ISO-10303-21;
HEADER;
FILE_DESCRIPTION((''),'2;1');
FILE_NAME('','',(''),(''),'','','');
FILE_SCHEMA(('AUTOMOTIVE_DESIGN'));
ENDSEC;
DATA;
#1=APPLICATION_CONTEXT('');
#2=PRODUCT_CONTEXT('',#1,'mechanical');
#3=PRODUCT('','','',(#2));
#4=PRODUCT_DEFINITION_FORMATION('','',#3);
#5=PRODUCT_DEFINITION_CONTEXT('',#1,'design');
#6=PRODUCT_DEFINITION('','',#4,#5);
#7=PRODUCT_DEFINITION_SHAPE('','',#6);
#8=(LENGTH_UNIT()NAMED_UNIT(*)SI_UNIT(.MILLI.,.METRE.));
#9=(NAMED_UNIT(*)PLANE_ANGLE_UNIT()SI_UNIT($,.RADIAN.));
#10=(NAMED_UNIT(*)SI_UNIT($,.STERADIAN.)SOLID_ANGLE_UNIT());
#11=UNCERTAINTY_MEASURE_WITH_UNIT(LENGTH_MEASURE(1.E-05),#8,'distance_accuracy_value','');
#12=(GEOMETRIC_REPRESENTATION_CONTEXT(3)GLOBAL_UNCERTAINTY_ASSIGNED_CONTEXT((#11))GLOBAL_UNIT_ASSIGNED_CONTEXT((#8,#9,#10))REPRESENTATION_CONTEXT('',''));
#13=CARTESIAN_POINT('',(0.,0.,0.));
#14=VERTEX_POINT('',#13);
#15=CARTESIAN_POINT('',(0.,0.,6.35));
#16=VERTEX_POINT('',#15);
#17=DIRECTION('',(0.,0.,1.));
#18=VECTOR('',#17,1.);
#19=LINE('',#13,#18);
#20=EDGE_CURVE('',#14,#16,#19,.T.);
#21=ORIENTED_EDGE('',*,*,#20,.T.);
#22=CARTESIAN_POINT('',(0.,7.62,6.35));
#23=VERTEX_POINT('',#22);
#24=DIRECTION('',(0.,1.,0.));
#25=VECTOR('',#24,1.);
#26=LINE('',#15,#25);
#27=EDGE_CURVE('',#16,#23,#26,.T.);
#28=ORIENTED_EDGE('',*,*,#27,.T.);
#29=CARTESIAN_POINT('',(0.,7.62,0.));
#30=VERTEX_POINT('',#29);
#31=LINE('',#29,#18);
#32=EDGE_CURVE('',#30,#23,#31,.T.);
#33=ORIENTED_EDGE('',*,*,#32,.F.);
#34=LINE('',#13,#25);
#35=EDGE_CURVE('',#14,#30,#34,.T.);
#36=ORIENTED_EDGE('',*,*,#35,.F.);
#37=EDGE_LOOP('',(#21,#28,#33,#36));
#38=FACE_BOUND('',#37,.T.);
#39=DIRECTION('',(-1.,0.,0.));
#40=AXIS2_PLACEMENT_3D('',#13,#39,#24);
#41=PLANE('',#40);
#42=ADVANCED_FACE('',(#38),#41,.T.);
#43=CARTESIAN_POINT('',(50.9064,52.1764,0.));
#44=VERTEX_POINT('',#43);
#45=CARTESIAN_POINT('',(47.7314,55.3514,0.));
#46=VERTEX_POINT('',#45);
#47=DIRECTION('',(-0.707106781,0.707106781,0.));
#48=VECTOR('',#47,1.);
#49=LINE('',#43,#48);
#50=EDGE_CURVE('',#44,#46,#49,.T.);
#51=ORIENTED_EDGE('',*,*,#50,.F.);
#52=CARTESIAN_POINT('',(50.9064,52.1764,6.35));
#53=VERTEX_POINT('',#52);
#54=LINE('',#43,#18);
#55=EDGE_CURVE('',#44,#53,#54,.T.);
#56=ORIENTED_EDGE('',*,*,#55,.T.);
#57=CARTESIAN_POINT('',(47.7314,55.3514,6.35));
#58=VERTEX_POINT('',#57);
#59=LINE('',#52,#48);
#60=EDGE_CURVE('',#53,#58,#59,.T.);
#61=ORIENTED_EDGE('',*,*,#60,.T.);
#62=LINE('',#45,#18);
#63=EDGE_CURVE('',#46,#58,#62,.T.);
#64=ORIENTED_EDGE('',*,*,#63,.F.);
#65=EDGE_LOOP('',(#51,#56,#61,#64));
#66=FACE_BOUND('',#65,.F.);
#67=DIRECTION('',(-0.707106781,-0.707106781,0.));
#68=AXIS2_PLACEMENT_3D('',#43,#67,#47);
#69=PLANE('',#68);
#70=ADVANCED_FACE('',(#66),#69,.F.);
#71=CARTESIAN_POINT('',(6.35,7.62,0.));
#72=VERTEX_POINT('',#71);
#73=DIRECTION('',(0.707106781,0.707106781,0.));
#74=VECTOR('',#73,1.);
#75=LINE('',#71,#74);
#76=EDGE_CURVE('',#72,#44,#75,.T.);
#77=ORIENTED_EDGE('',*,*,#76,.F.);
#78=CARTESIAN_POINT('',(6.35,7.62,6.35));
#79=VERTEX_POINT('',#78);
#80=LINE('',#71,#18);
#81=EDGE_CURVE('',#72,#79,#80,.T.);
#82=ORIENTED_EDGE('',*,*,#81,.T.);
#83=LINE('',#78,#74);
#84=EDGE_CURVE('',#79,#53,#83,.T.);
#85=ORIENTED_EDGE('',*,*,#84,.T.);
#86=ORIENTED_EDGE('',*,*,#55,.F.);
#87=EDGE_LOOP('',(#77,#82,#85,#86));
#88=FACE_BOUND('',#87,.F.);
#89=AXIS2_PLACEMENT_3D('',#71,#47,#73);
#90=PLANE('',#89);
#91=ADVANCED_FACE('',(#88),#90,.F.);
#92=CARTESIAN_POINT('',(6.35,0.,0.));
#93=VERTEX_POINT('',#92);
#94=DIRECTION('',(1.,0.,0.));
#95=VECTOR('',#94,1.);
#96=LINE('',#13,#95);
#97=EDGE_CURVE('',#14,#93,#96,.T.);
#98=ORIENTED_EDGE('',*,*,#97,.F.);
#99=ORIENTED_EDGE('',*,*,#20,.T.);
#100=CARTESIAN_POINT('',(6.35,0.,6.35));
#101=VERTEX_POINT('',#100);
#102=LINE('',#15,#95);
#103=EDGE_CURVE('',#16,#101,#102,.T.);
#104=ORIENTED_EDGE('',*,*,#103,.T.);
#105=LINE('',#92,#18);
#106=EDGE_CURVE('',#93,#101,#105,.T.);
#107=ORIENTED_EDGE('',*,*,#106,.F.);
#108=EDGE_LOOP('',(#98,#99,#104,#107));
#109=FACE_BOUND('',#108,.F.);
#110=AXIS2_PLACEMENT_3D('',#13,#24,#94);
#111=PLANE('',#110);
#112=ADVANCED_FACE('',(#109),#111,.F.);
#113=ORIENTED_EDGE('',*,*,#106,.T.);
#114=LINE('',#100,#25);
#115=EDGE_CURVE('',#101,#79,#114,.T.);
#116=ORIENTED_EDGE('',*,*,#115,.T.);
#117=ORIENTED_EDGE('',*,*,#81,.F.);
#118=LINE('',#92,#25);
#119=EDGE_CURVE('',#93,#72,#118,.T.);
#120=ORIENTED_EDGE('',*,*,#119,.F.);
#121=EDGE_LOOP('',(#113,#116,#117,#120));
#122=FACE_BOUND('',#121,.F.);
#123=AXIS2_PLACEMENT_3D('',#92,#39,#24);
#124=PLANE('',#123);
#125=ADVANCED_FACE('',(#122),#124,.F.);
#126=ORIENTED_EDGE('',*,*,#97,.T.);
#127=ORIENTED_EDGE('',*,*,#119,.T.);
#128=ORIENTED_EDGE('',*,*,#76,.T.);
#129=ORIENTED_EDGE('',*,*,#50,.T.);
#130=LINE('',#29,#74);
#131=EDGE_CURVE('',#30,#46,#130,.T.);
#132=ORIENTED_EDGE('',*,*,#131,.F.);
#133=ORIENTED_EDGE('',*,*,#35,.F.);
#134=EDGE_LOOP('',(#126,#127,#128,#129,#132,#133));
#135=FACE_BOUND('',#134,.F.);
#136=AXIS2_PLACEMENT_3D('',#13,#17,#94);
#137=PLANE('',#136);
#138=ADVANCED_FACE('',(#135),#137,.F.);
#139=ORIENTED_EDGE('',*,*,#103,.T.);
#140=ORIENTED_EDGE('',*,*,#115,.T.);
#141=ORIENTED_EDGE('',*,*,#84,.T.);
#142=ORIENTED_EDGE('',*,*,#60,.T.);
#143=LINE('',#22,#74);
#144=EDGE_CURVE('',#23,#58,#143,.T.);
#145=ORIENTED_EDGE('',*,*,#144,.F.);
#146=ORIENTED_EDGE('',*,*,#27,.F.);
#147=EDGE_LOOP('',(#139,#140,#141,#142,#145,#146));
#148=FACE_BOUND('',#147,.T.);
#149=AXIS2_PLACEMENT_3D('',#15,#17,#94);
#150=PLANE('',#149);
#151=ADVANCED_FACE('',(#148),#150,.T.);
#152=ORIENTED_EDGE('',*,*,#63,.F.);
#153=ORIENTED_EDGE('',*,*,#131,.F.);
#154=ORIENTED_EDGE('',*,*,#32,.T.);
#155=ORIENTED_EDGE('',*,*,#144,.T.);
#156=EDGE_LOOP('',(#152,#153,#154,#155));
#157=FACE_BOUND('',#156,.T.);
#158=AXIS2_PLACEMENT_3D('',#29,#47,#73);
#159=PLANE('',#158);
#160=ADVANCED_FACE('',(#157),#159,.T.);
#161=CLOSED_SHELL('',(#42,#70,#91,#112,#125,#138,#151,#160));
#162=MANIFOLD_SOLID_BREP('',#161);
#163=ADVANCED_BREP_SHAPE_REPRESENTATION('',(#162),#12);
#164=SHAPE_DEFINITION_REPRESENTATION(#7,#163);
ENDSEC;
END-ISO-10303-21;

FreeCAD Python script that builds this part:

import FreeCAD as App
import Part
import Sketcher
from FreeCAD import Vector
Q = App.Units.Quantity

doc = App.newDocument("Part")
body = doc.addObject("PartDesign::Body", "Body")

# Sketch on XY plane
sketch1 = body.newObject("Sketcher::SketchObject", "Sketch")
sketch1.AttachmentSupport = (doc.getObject("XY_Plane"), [""])
sketch1.MapMode = "FlatFace"
sketch1.addGeometry([
    Part.LineSegment(Vector(0, 7.6, 0), Vector(0, 0, 0)),  # 0
    Part.LineSegment(Vector(0, 0, 0), Vector(6.3, 0, 0)),  # 1
    Part.LineSegment(Vector(6.3, 0, 0), Vector(6.3, 7.6, 0)),  # 2
    Part.LineSegment(Vector(6.3, 7.6, 0), Vector(50.9, 52.2, 0)),  # 3
    Part.LineSegment(Vector(50.9, 52.2, 0), Vector(47.7, 55.4, 0)),  # 4
    Part.LineSegment(Vector(47.7, 55.4, 0), Vector(0, 7.6, 0)),  # 5
], False)
sketch1.addConstraint([
    Sketcher.Constraint("Coincident", 0, 2, 1, 1),
    Sketcher.Constraint("Coincident", 1, 2, 2, 1),
    Sketcher.Constraint("Coincident", 2, 2, 3, 1),
    Sketcher.Constraint("Coincident", 3, 2, 4, 1),
    Sketcher.Constraint("Coincident", 4, 2, 5, 1),
    Sketcher.Constraint("Coincident", 5, 2, 0, 1),
    Sketcher.Constraint("Vertical", 0),
    Sketcher.Constraint("Horizontal", 1),
    Sketcher.Constraint("Vertical", 2),
    Sketcher.Constraint("Coincident", 0, 2, -1, 1),
    Sketcher.Constraint("Perpendicular", 3, 4),
    Sketcher.Constraint("Perpendicular", 4, 5),
    Sketcher.Constraint("Horizontal", 2, 2, 5, 2),
    Sketcher.Constraint("DistanceY", 0, 2, 0, 1, Q("0.3 in")),
    Sketcher.Constraint("Angle", 3, Q("45 deg")),
    Sketcher.Constraint("DistanceX", 1, 1, 1, 2, Q("0.25 in")),
    Sketcher.Constraint("Distance", 3, Q("2.4808 in")),
])
pad1 = body.newObject("PartDesign::Pad", "Pad")
pad1.Profile = sketch1
pad1.Length = Q("0.25 in")

doc.recompute()
